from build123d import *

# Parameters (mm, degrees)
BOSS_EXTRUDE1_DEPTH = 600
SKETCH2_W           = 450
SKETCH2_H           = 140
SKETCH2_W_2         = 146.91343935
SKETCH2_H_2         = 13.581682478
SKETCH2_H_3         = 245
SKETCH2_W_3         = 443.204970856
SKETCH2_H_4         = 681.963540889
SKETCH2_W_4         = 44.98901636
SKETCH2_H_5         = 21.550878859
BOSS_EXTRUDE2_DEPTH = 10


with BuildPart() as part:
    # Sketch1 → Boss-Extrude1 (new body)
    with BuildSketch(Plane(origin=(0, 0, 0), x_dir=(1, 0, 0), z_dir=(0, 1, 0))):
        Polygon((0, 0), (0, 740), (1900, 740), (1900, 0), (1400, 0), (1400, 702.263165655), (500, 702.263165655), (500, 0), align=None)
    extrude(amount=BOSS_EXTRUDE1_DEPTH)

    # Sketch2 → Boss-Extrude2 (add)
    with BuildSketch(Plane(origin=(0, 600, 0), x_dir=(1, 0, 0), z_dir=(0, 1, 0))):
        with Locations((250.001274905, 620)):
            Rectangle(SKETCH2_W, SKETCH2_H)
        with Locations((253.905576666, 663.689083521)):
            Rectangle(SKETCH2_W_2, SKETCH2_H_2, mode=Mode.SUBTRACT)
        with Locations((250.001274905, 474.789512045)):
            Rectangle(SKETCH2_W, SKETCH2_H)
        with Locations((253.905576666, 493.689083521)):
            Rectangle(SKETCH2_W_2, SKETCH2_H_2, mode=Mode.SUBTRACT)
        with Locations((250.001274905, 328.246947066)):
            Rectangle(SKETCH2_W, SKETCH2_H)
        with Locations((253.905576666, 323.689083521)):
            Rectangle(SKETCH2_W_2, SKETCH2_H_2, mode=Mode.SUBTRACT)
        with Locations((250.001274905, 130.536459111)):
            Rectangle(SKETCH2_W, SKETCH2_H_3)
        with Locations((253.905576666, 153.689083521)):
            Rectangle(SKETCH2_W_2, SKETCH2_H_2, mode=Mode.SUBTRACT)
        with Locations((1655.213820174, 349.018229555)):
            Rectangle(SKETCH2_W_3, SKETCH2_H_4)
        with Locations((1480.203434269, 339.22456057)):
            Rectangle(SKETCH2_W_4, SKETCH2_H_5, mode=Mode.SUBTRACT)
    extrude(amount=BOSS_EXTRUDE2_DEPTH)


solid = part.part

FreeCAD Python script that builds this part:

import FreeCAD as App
import Part
import Sketcher
Q = App.Units.Quantity


def add_polygon(sketch, points):
    """Adds a closed chain of lines whose ends are joined by coincident constraints."""
    first, n = sketch.GeometryCount, len(points)
    for a, b in zip(points, points[1:] + points[:1]):
        sketch.addGeometry(Part.LineSegment(App.Vector(*a, 0), App.Vector(*b, 0)), False)
    for i in range(n):
        sketch.addConstraint(Sketcher.Constraint("Coincident", first + i, 2, first + (i + 1) % n, 1))

doc = App.newDocument("Part")
body = doc.addObject("PartDesign::Body", "Body")

# Sketch on XZ plane
sketch1 = body.newObject("Sketcher::SketchObject", "Sketch")
sketch1.AttachmentSupport = (doc.getObject("XZ_Plane"), [""])
sketch1.MapMode = "FlatFace"
add_polygon(sketch1, [(0, -740), (0, 0), (500, 0), (500, -702.263166), (1400, -702.263166), (1400, 0), (1900, 0), (1900, -740)])  # lines 0-7
sketch1.addConstraint(Sketcher.Constraint("Vertical", 0))
sketch1.addConstraint(Sketcher.Constraint("Horizontal", 1))
sketch1.addConstraint(Sketcher.Constraint("Vertical", 2))
sketch1.addConstraint(Sketcher.Constraint("Horizontal", 3))
sketch1.addConstraint(Sketcher.Constraint("Vertical", 4))
sketch1.addConstraint(Sketcher.Constraint("Horizontal", 5))
sketch1.addConstraint(Sketcher.Constraint("Vertical", 6))
sketch1.addConstraint(Sketcher.Constraint("Horizontal", 7))
sketch1.addConstraint(Sketcher.Constraint("Coincident", 0, 2, -1, 1))
sketch1.addConstraint(Sketcher.Constraint("PointOnObject", 4, 2, -1))
sketch1.addConstraint(Sketcher.Constraint("Equal", 1, 5))
sketch1.addConstraint(Sketcher.Constraint("DistanceX", 1, 1, 1, 2, Q("500 mm")))
sketch1.addConstraint(Sketcher.Constraint("DistanceX", 3, 1, 3, 2, Q("900 mm")))
sketch1.addConstraint(Sketcher.Constraint("DistanceY", 0, 1, 0, 2, Q("740 mm")))
sketch1.addConstraint(Sketcher.Constraint("DistanceY", 2, 2, 2, 1, Q("702.263166 mm")))
pad1 = body.newObject("PartDesign::Pad", "Pad")
pad1.Profile = sketch1
pad1.Length = 600
pad1.Reversed = True

# Sketch on XZ plane
sketch2 = body.newObject("Sketcher::SketchObject", "Sketch001")
sketch2.AttachmentSupport = (doc.getObject("XZ_Plane"), [""])
sketch2.MapMode = "FlatFace"
sketch2.AttachmentOffset = App.Placement(App.Vector(0, 0, -600), App.Rotation())
add_polygon(sketch2, [(25.001275, -690), (25.001275, -550), (475.001275, -550), (475.001275, -690)])  # lines 0-3
add_polygon(sketch2, [(327.362296, -656.898242), (180.448857, -656.898242), (180.448857, -670.479925), (327.362296, -670.479925)])  # lines 4-7
add_polygon(sketch2, [(25.001275, -544.789512), (25.001275, -404.789512), (475.001275, -404.789512), (475.001275, -544.789512)])  # lines 8-11
add_polygon(sketch2, [(327.362296, -486.898242), (180.448857, -486.898242), (180.448857, -500.479925), (327.362296, -500.479925)])  # lines 12-15
add_polygon(sketch2, [(25.001275, -398.246947), (25.001275, -258.246947), (475.001275, -258.246947), (475.001275, -398.246947)])  # lines 16-19
add_polygon(sketch2, [(327.362296, -316.898242), (180.448857, -316.898242), (180.448857, -330.479925), (327.362296, -330.479925)])  # lines 20-23
add_polygon(sketch2, [(25.001275, -253.036459), (25.001275, -8.036459), (475.001275, -8.036459), (475.001275, -253.036459)])  # lines 24-27
add_polygon(sketch2, [(327.362296, -146.898242), (180.448857, -146.898242), (180.448857, -160.479925), (327.362296, -160.479925)])  # lines 28-31
add_polygon(sketch2, [(1433.611335, -690), (1433.611335, -8.036459), (1876.816306, -8.036459), (1876.816306, -690)])  # lines 32-35
add_polygon(sketch2, [(1502.697942, -328.449121), (1457.708926, -328.449121), (1457.708926, -350), (1502.697942, -350)])  # lines 36-39
sketch2.addConstraint(Sketcher.Constraint("Vertical", 0))
sketch2.addConstraint(Sketcher.Constraint("Horizontal", 1))
sketch2.addConstraint(Sketcher.Constraint("Vertical", 2))
sketch2.addConstraint(Sketcher.Constraint("Horizontal", 3))
sketch2.addConstraint(Sketcher.Constraint("Horizontal", 4))
sketch2.addConstraint(Sketcher.Constraint("Vertical", 5))
sketch2.addConstraint(Sketcher.Constraint("Horizontal", 6))
sketch2.addConstraint(Sketcher.Constraint("Vertical", 7))
sketch2.addConstraint(Sketcher.Constraint("Vertical", 8))
sketch2.addConstraint(Sketcher.Constraint("Horizontal", 9))
sketch2.addConstraint(Sketcher.Constraint("Vertical", 10))
sketch2.addConstraint(Sketcher.Constraint("Horizontal", 11))
sketch2.addConstraint(Sketcher.Constraint("Horizontal", 12))
sketch2.addConstraint(Sketcher.Constraint("Vertical", 13))
sketch2.addConstraint(Sketcher.Constraint("Horizontal", 14))
sketch2.addConstraint(Sketcher.Constraint("Vertical", 15))
sketch2.addConstraint(Sketcher.Constraint("Vertical", 16))
sketch2.addConstraint(Sketcher.Constraint("Horizontal", 17))
sketch2.addConstraint(Sketcher.Constraint("Vertical", 18))
sketch2.addConstraint(Sketcher.Constraint("Horizontal", 19))
sketch2.addConstraint(Sketcher.Constraint("Horizontal", 20))
sketch2.addConstraint(Sketcher.Constraint("Vertical", 21))
sketch2.addConstraint(Sketcher.Constraint("Horizontal", 22))
sketch2.addConstraint(Sketcher.Constraint("Vertical", 23))
sketch2.addConstraint(Sketcher.Constraint("Vertical", 24))
sketch2.addConstraint(Sketcher.Constraint("Horizontal", 25))
sketch2.addConstraint(Sketcher.Constraint("Vertical", 26))
sketch2.addConstraint(Sketcher.Constraint("Horizontal", 27))
sketch2.addConstraint(Sketcher.Constraint("Horizontal", 28))
sketch2.addConstraint(Sketcher.Constraint("Vertical", 29))
sketch2.addConstraint(Sketcher.Constraint("Horizontal", 30))
sketch2.addConstraint(Sketcher.Constraint("Vertical", 31))
sketch2.addConstraint(Sketcher.Constraint("Vertical", 32))
sketch2.addConstraint(Sketcher.Constraint("Horizontal", 33))
sketch2.addConstraint(Sketcher.Constraint("Vertical", 34))
sketch2.addConstraint(Sketcher.Constraint("Horizontal", 35))
sketch2.addConstraint(Sketcher.Constraint("Horizontal", 36))
sketch2.addConstraint(Sketcher.Constraint("Vertical", 37))
sketch2.addConstraint(Sketcher.Constraint("Horizontal", 38))
sketch2.addConstraint(Sketcher.Constraint("Vertical", 39))
sketch2.addConstraint(Sketcher.Constraint("Horizontal", 25, 2, 32, 2))
sketch2.addConstraint(Sketcher.Constraint("Horizontal", 3, 2, 34, 2))
sketch2.addConstraint(Sketcher.Constraint("Vertical", 3, 2, 8, 2))
sketch2.addConstraint(Sketcher.Constraint("Vertical", 2, 2, 9, 2))
sketch2.addConstraint(Sketcher.Constraint("Vertical", 5, 2, 12, 2))
sketch2.addConstraint(Sketcher.Constraint("Vertical", 7, 2, 14, 2))
sketch2.addConstraint(Sketcher.Constraint("Vertical", 11, 2, 16, 2))
sketch2.addConstraint(Sketcher.Constraint("Vertical", 10, 2, 17, 2))
sketch2.addConstraint(Sketcher.Constraint("Vertical", 13, 2, 20, 2))
sketch2.addConstraint(Sketcher.Constraint("Vertical", 15, 2, 22, 2))
sketch2.addConstraint(Sketcher.Constraint("Vertical", 19, 2, 24, 2))
sketch2.addConstraint(Sketcher.Constraint("Vertical", 18, 2, 25, 2))
sketch2.addConstraint(Sketcher.Constraint("Vertical", 21, 2, 28, 2))
sketch2.addConstraint(Sketcher.Constraint("Vertical", 23, 2, 30, 2))
sketch2.addConstraint(Sketcher.Constraint("Equal", 2, 8))
sketch2.addConstraint(Sketcher.Constraint("Equal", 7, 13))
sketch2.addConstraint(Sketcher.Constraint("Equal", 10, 16))
sketch2.addConstraint(Sketcher.Constraint("Equal", 15, 21))
sketch2.addConstraint(Sketcher.Constraint("Equal", 23, 29))
sketch2.addConstraint(Sketcher.Constraint("DistanceX", 1, 1, 1, 2, Q("450 mm")))
sketch2.addConstraint(Sketcher.Constraint("DistanceY", 0, 1, 0, 2, Q("140 mm")))
sketch2.addConstraint(Sketcher.Constraint("DistanceY", 24, 1, 24, 2, Q("245 mm")))
sketch2.addConstraint(Sketcher.Constraint("DistanceY", 0, 2, -1, 1, Q("550 mm")))
sketch2.addConstraint(Sketcher.Constraint("DistanceY", 37, 2, -1, 1, Q("350 mm")))
sketch2.addConstraint(Sketcher.Constraint("DistanceY", 4, 2, 12, 2, Q("170 mm")))
sketch2.addConstraint(Sketcher.Constraint("DistanceY", 12, 2, 20, 2, Q("170 mm")))
sketch2.addConstraint(Sketcher.Constraint("DistanceY", 20, 2, 28, 2, Q("170 mm")))
sketch2.addConstraint(Sketcher.Constraint("DistanceX", 4, 2, 4, 1, Q("146.913439 mm")))
sketch2.addConstraint(Sketcher.Constraint("DistanceX", 33, 1, 33, 2, Q("443.204971 mm")))
sketch2.addConstraint(Sketcher.Constraint("DistanceY", 32, 1, 32, 2, Q("681.963541 mm")))
sketch2.addConstraint(Sketcher.Constraint("DistanceY", 37, 2, 37, 1, Q("21.550879 mm")))
sketch2.addConstraint(Sketcher.Constraint("DistanceX", 36, 2, 36, 1, Q("44.989016 mm")))
sketch2.addConstraint(Sketcher.Constraint("DistanceY", 5, 2, 5, 1, Q("13.581682 mm")))
sketch2.addConstraint(Sketcher.Constraint("DistanceX", 6, 2, 2, 2, Q("147.638979 mm")))
sketch2.addConstraint(Sketcher.Constraint("DistanceY", 4, 2, 8, 2, Q("252.10873 mm")))
sketch2.addConstraint(Sketcher.Constraint("DistanceX", 25, 2, 32, 2, Q("958.61006 mm")))
sketch2.addConstraint(Sketcher.Constraint("DistanceX", 32, 2, 36, 2, Q("24.097591 mm")))
sketch2.addConstraint(Sketcher.Constraint("DistanceX", -1, 1, 0, 2, Q("25.001275 mm")))
sketch2.addConstraint(Sketcher.Constraint("DistanceY", 4, 2, -1, 1, Q("656.898242 mm")))
sketch2.addConstraint(Sketcher.Constraint("DistanceY", 16, 2, -1, 1, Q("258.246947 mm")))
pad2 = body.newObject("PartDesign::Pad", "Pad001")
pad2.Profile = sketch2
pad2.Length = 10
pad2.Reversed = True

doc.recompute()
